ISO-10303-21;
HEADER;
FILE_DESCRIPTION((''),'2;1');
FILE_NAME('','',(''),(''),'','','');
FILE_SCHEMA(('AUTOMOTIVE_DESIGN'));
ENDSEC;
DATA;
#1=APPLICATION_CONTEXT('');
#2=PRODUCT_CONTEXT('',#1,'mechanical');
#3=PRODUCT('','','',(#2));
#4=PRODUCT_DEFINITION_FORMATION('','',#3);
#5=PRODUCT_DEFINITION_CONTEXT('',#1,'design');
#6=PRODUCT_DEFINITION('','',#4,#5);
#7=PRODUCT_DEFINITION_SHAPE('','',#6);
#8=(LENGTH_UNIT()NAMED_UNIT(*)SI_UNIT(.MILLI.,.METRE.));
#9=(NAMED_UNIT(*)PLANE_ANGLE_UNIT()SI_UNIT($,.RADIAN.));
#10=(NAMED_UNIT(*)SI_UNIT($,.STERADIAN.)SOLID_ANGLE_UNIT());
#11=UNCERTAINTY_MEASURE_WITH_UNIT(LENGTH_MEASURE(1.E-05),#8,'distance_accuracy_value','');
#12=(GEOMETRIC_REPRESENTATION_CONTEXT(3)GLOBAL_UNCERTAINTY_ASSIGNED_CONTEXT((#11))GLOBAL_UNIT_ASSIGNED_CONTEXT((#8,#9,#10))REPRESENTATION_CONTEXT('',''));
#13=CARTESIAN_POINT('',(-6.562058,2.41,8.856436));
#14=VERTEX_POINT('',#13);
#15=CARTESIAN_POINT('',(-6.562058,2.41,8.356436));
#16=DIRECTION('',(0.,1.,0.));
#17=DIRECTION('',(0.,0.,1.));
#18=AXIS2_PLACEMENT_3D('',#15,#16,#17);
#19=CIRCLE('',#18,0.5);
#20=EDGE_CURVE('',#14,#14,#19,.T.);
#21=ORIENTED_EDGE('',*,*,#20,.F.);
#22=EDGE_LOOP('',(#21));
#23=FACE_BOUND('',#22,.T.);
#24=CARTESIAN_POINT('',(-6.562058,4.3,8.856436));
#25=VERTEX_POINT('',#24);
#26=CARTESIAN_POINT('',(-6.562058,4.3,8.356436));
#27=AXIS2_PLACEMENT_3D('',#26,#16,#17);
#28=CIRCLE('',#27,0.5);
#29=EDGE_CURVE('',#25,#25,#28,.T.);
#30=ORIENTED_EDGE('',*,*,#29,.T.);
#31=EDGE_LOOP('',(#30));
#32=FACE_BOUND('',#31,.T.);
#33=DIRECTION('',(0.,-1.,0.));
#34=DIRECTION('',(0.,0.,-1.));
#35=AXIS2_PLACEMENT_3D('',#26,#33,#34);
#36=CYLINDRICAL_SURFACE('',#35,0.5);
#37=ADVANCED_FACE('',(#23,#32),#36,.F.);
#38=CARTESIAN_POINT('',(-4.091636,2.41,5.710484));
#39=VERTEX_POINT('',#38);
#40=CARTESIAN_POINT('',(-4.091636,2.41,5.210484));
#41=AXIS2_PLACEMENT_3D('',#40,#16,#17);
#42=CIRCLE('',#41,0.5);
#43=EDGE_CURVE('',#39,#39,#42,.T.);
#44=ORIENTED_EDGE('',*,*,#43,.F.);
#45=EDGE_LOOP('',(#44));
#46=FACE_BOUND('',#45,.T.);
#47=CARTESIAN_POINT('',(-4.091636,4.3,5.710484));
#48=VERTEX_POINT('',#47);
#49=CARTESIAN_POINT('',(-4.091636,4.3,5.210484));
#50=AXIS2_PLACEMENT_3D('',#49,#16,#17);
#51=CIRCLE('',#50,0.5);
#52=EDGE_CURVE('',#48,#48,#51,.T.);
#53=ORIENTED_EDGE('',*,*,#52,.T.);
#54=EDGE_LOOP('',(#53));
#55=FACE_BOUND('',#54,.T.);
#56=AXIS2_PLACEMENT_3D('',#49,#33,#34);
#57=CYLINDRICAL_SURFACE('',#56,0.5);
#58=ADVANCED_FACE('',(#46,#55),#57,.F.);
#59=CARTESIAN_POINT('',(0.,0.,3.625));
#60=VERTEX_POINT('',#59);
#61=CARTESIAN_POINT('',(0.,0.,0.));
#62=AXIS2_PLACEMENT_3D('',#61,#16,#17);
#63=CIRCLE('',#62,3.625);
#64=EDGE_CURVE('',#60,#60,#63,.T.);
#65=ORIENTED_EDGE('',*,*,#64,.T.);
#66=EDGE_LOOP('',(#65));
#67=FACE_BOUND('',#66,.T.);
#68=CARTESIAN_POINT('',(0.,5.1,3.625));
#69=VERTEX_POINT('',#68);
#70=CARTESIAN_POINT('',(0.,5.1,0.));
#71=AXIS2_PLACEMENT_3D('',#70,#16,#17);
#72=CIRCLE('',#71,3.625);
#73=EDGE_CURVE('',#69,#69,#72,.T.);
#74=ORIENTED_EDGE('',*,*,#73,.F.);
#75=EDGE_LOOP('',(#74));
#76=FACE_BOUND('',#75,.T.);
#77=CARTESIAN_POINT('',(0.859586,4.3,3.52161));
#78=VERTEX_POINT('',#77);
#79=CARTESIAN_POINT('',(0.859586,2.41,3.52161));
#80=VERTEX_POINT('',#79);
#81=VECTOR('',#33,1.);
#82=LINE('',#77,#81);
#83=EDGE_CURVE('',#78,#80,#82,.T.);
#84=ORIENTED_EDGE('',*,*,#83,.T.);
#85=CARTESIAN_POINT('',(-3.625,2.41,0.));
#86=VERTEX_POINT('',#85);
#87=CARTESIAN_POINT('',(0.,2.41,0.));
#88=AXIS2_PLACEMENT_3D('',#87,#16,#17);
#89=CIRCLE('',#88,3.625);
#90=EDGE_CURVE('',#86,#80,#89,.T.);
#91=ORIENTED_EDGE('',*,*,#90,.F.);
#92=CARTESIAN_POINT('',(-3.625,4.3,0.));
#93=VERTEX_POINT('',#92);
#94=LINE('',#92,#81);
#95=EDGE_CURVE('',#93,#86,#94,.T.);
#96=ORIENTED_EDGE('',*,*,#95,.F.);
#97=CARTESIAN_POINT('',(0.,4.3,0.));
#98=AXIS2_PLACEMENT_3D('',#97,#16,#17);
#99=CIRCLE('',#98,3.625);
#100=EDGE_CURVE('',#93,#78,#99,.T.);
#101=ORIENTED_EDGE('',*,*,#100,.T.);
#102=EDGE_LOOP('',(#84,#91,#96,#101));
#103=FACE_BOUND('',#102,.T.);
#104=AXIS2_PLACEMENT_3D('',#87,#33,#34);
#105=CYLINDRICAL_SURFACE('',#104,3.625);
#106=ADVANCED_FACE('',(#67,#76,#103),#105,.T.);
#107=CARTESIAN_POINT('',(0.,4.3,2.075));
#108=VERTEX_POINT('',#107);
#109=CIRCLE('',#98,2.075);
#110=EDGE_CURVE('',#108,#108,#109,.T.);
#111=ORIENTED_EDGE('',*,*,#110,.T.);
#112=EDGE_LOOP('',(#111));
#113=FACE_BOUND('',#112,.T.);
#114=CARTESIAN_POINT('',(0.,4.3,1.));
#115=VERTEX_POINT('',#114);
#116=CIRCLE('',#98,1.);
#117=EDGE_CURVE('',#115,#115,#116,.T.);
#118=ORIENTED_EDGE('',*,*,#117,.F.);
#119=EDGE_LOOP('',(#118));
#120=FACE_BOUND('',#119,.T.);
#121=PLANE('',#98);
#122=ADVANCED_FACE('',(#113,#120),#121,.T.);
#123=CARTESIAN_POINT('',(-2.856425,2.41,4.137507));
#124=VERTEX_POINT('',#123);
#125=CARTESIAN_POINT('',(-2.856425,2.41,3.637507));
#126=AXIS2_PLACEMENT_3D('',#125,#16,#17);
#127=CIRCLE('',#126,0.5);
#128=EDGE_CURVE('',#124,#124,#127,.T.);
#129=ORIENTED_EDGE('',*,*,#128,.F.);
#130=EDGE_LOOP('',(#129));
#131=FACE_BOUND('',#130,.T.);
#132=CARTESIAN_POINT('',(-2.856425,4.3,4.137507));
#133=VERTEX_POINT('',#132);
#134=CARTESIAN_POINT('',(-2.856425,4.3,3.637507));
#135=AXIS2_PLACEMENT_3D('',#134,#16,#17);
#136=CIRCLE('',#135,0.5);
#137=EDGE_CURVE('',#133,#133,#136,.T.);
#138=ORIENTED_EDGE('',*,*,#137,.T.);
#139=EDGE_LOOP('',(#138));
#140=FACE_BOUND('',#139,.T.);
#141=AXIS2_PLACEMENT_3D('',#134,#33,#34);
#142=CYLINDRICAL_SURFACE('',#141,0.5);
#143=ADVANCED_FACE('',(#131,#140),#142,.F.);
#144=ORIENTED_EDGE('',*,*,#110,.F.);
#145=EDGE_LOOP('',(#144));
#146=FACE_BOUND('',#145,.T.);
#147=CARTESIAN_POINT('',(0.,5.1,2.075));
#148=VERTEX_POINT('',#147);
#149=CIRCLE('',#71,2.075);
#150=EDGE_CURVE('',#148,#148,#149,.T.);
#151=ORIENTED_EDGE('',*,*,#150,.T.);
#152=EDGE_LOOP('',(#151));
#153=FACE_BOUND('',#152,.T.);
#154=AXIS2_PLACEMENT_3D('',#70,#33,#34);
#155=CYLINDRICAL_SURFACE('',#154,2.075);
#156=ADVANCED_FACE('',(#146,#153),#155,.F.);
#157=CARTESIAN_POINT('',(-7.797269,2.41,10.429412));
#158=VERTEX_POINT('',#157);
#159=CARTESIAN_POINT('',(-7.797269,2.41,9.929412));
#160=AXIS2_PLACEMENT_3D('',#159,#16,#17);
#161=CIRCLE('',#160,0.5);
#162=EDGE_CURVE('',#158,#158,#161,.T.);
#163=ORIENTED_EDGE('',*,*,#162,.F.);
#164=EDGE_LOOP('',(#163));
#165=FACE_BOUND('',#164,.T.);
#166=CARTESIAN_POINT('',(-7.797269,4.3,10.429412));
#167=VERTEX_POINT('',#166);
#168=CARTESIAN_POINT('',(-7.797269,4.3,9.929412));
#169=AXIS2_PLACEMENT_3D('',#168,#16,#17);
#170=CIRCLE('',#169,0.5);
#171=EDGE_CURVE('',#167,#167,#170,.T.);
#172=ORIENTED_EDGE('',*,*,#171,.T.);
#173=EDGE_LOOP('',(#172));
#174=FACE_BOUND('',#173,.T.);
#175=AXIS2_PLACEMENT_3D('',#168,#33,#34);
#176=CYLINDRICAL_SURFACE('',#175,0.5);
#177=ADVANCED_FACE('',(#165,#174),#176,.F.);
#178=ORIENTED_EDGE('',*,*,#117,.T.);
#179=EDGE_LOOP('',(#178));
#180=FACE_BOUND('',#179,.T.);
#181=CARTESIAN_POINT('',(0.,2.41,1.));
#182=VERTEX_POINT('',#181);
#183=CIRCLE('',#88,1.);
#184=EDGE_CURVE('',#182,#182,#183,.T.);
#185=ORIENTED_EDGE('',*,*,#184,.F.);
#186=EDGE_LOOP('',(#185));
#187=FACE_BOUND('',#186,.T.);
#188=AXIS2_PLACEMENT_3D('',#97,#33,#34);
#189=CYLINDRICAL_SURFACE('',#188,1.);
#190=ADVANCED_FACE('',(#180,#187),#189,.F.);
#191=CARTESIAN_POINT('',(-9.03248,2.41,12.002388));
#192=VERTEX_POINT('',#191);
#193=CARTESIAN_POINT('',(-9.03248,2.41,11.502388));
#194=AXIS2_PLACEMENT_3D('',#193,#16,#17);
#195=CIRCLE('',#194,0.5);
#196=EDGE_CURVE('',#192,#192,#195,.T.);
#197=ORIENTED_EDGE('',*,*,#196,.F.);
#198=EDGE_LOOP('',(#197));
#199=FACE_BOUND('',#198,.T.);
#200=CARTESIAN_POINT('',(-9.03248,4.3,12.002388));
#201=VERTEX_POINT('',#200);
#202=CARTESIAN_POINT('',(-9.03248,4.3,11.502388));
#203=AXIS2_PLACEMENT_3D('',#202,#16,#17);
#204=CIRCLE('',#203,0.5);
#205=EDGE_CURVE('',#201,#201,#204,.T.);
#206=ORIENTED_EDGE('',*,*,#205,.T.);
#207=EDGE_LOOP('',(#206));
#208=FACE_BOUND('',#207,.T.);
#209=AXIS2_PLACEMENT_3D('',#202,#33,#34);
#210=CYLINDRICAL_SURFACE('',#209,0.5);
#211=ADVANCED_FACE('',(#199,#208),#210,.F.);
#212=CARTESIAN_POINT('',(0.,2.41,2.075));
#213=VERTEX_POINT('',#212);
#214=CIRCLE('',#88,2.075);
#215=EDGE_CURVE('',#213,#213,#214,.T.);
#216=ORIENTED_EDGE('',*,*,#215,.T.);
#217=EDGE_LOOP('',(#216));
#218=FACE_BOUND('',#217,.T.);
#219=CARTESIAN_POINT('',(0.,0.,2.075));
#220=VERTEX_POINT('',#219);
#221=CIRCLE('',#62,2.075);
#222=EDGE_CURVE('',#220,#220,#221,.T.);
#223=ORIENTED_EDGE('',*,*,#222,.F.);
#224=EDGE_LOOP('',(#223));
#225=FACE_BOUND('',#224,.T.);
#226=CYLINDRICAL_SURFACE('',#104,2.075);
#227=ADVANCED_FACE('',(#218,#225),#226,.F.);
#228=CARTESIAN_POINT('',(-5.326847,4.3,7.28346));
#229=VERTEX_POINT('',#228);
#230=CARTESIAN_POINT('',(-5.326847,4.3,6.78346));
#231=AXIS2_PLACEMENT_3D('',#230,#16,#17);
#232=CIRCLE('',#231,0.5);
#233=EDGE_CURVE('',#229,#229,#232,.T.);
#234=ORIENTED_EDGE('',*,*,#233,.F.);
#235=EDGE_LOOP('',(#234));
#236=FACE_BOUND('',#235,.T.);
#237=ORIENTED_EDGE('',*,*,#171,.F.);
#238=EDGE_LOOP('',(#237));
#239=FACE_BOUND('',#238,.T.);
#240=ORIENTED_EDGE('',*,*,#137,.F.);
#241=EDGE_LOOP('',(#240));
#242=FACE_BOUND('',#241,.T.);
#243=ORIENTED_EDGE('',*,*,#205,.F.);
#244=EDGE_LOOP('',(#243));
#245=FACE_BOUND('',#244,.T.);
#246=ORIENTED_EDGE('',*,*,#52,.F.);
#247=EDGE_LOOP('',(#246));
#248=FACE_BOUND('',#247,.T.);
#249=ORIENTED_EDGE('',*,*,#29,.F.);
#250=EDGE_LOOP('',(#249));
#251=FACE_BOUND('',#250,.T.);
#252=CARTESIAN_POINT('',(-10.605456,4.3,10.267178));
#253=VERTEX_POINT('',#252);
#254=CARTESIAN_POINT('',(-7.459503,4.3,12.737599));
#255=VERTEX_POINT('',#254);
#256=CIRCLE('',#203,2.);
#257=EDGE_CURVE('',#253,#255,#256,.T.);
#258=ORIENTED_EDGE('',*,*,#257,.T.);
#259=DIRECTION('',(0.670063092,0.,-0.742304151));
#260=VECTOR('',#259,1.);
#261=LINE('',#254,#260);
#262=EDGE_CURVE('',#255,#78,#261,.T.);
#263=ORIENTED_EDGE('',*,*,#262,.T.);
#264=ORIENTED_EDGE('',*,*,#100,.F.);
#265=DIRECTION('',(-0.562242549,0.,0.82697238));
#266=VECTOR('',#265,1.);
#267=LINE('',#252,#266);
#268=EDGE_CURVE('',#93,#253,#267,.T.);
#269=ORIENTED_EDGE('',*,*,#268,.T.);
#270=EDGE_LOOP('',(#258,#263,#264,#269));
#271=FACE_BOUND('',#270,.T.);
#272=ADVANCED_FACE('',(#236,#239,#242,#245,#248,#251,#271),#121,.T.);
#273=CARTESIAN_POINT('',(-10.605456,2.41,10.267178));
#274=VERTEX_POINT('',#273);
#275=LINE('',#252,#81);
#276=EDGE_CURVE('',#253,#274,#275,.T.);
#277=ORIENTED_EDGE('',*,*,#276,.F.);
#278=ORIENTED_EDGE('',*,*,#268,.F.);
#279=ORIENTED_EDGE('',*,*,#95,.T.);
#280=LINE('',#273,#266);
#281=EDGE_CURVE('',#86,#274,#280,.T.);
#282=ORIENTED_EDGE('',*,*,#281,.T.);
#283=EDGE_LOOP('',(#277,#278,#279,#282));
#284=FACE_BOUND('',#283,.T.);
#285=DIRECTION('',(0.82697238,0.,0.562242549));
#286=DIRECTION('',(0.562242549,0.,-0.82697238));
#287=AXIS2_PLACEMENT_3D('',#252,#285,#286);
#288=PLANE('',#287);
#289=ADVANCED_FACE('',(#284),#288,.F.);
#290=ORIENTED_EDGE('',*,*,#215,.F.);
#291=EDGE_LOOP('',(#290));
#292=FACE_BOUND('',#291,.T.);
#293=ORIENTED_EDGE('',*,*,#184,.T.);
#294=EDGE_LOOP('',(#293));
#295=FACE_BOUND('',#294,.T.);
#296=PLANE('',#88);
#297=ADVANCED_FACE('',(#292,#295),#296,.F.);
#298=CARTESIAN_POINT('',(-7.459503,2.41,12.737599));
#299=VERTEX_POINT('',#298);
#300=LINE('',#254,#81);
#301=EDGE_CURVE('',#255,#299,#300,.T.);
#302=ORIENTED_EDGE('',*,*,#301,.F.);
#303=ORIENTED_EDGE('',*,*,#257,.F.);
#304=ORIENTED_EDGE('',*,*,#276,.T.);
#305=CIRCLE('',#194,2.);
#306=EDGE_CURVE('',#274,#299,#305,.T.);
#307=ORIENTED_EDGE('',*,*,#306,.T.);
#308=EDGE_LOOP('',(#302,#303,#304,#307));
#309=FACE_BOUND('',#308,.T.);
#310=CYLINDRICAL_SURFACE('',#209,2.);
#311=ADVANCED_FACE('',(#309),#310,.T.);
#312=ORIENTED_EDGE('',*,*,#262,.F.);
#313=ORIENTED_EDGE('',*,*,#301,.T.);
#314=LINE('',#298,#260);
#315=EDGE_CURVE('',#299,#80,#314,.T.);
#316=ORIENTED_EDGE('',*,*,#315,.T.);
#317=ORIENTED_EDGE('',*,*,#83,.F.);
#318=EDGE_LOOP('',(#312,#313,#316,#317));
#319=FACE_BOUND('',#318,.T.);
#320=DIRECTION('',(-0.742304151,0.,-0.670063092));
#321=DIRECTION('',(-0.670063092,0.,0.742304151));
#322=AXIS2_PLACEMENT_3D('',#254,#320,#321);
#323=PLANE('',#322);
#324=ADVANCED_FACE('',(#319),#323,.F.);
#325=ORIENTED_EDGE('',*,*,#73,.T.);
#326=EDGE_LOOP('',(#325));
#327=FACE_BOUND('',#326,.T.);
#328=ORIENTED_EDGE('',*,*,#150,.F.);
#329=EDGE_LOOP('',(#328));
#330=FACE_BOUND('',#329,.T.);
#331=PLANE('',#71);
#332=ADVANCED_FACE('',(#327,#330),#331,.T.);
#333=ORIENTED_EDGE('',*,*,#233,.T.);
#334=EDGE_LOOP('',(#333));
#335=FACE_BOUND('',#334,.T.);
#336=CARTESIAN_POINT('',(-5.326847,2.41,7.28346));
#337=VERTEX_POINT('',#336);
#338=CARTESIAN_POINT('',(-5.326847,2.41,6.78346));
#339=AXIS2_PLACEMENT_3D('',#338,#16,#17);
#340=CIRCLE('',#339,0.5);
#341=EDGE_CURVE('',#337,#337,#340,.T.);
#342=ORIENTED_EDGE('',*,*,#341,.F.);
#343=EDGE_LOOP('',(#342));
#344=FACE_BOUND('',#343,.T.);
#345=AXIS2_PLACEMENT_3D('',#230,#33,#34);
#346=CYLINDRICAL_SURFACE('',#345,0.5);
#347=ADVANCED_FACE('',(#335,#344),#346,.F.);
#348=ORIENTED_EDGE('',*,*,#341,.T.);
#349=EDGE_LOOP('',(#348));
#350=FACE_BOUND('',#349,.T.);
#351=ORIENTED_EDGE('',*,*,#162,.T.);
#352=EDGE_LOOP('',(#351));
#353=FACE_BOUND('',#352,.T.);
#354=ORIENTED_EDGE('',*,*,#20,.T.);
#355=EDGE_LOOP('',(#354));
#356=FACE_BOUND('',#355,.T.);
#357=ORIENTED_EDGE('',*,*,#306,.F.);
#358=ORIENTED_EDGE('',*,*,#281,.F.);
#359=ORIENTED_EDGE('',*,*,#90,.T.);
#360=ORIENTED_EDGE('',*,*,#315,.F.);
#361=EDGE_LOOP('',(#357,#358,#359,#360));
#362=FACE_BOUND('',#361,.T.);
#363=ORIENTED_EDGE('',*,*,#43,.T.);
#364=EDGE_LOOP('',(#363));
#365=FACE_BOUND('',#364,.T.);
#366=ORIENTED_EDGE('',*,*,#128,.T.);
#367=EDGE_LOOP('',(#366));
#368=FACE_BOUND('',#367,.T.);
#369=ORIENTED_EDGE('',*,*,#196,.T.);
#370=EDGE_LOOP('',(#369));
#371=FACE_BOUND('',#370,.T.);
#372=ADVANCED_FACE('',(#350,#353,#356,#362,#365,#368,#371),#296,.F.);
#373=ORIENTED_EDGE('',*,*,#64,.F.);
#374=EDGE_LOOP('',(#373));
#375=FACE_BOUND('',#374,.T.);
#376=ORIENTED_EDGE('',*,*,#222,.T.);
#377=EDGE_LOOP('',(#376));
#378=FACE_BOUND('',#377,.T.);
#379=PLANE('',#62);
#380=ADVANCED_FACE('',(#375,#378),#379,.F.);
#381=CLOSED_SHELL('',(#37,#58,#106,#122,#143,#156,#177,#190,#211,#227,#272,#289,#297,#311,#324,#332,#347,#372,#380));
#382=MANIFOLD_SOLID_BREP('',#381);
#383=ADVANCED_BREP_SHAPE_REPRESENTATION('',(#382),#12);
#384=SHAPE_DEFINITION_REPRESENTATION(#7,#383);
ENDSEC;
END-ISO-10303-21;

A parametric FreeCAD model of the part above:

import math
import FreeCAD as App
import Part
import Sketcher
Q = App.Units.Quantity

doc = App.newDocument("Part")
body = doc.addObject("PartDesign::Body", "Body")

# Sketch on XZ plane
sketch1 = doc.addObject("Sketcher::SketchObject", "Sketch")
body.addObject(sketch1)
sketch1.AttachmentSupport = (doc.XZ_Plane, [""])
sketch1.MapMode = "FlatFace"
sketch1.addGeometry([
    Part.Circle(App.Vector(0, 0, 0), App.Vector(0, 0, 1), 3.6),
    Part.Circle(App.Vector(0, 0, 0), App.Vector(0, 0, 1), 2.1),
], False)
sketch1.addConstraint([
    Sketcher.Constraint("Coincident", 0, 3, -1, 1),
    Sketcher.Constraint("Coincident", 1, 3, -1, 1),
    Sketcher.Constraint("Diameter", 0, Q("7.25 mm")),
    Sketcher.Constraint("Diameter", 1, Q("4.15 mm")),
])
pad1 = doc.addObject("PartDesign::Pad", "Pad")
body.addObject(pad1)
pad1.Profile = sketch1
pad1.Length = 2.41
pad1.Reversed = True

# Sketch on XZ plane
sketch2 = doc.addObject("Sketcher::SketchObject", "Sketch001")
body.addObject(sketch2)
sketch2.AttachmentSupport = (doc.XZ_Plane, [""])
sketch2.MapMode = "FlatFace"
sketch2.AttachmentOffset = App.Placement(App.Vector(0, 0, -2.41), App.Rotation())
sketch2.addGeometry([
    Part.LineSegment(App.Vector(-3.6, 0, 0), App.Vector(-10.6, 10.3, 0)),  # 0
    Part.ArcOfCircle(Part.Circle(App.Vector(-9, 11.5, 0), App.Vector(0, 0, 1), 2), math.radians(38), math.radians(218)),  # 1
    Part.LineSegment(App.Vector(-7.5, 12.7, 0), App.Vector(0.9, 3.5, 0)),  # 2
    Part.ArcOfCircle(Part.Circle(App.Vector(0, 0, 0), App.Vector(0, 0, 1), 3.6), math.radians(180), math.radians(436)),  # 3
    Part.Circle(App.Vector(-9, 11.5, 0), App.Vector(0, 0, 1), 0.5),  # 4
    Part.Circle(App.Vector(-7.8, 9.9, 0), App.Vector(0, 0, 1), 0.5),  # 5
    Part.Circle(App.Vector(-6.6, 8.4, 0), App.Vector(0, 0, 1), 0.5),  # 6
    Part.Circle(App.Vector(-5.3, 6.8, 0), App.Vector(0, 0, 1), 0.5),  # 7
    Part.Circle(App.Vector(-4.1, 5.2, 0), App.Vector(0, 0, 1), 0.5),  # 8
    Part.Circle(App.Vector(-2.9, 3.6, 0), App.Vector(0, 0, 1), 0.5),  # 9
    Part.Circle(App.Vector(0, 0, 0), App.Vector(0, 0, 1), 1),  # 10
], False)
sketch2.addConstraint([
    Sketcher.Constraint("Coincident", 0, 2, 1, 2),
    Sketcher.Constraint("Coincident", 1, 1, 2, 1),
    Sketcher.Constraint("Coincident", 2, 2, 3, 2),
    Sketcher.Constraint("Coincident", 3, 1, 0, 1),
    Sketcher.Constraint("Coincident", 3, 3, -1, 1),
    Sketcher.Constraint("Coincident", 10, 3, -1, 1),
    Sketcher.Constraint("Coincident", 4, 3, 1, 3),
    Sketcher.Constraint("Equal", 4, 5),
    Sketcher.Constraint("Equal", 5, 6),
    Sketcher.Constraint("Equal", 6, 7),
    Sketcher.Constraint("Equal", 7, 8),
    Sketcher.Constraint("Equal", 8, 9),
    Sketcher.Constraint("PointOnObject", 3, 1, -1),
    Sketcher.Constraint("Equal", 0, 2),
    Sketcher.Constraint("Diameter", 4, Q("1 mm")),
    Sketcher.Constraint("Diameter", 10, Q("2 mm")),
    Sketcher.Constraint("Radius", 1, Q("2 mm")),
    Sketcher.Constraint("Radius", 3, Q("3.625 mm")),
    Sketcher.Constraint("DistanceY", -1, 1, 1, 1, Q("12.737599 mm")),
    Sketcher.Constraint("Distance", 0, Q("12.415381 mm")),
    Sketcher.Constraint("DistanceX", 1, 3, -1, 1, Q("9.03248 mm")),
    Sketcher.Constraint("DistanceY", -1, 1, 1, 3, Q("11.502388 mm")),
    Sketcher.Constraint("DistanceX", 5, 3, -1, 1, Q("7.797269 mm")),
    Sketcher.Constraint("DistanceY", -1, 1, 7, 3, Q("6.78346 mm")),
    Sketcher.Constraint("DistanceX", 5, 3, 6, 3, Q("1.235211 mm")),
    Sketcher.Constraint("DistanceX", 6, 3, 7, 3, Q("1.235211 mm")),
    Sketcher.Constraint("DistanceX", 7, 3, 8, 3, Q("1.235211 mm")),
    Sketcher.Constraint("DistanceY", 8, 3, 5, 3, Q("4.718929 mm")),
    Sketcher.Constraint("DistanceX", 8, 3, 9, 3, Q("1.235211 mm")),
    Sketcher.Constraint("DistanceY", 9, 3, 6, 3, Q("4.718929 mm")),
    Sketcher.Constraint("DistanceY", 6, 3, 0, 2, Q("1.910742 mm")),
    Sketcher.Constraint("DistanceY", -1, 1, 5, 3, Q("9.929412 mm")),
])
pad2 = doc.addObject("PartDesign::Pad", "Pad001")
body.addObject(pad2)
pad2.Profile = sketch2
pad2.Length = 1.89
pad2.Reversed = True

# Sketch on XZ plane
sketch3 = doc.addObject("Sketcher::SketchObject", "Sketch002")
body.addObject(sketch3)
sketch3.AttachmentSupport = (doc.XZ_Plane, [""])
sketch3.MapMode = "FlatFace"
sketch3.AttachmentOffset = App.Placement(App.Vector(0, 0, -4.3), App.Rotation())
sketch3.addGeometry([
    Part.Circle(App.Vector(0, 0, 0), App.Vector(0, 0, 1), 3.6),
    Part.Circle(App.Vector(0, 0, 0), App.Vector(0, 0, 1), 2.1),
], False)
sketch3.addConstraint([
    Sketcher.Constraint("Coincident", 0, 3, -1, 1),
    Sketcher.Constraint("Coincident", 1, 3, -1, 1),
    Sketcher.Constraint("Diameter", 0, Q("7.25 mm")),
    Sketcher.Constraint("Diameter", 1, Q("4.15 mm")),
])
pad3 = doc.addObject("PartDesign::Pad", "Pad002")
body.addObject(pad3)
pad3.Profile = sketch3
pad3.Length = 0.8
pad3.Reversed = True

doc.recompute()
